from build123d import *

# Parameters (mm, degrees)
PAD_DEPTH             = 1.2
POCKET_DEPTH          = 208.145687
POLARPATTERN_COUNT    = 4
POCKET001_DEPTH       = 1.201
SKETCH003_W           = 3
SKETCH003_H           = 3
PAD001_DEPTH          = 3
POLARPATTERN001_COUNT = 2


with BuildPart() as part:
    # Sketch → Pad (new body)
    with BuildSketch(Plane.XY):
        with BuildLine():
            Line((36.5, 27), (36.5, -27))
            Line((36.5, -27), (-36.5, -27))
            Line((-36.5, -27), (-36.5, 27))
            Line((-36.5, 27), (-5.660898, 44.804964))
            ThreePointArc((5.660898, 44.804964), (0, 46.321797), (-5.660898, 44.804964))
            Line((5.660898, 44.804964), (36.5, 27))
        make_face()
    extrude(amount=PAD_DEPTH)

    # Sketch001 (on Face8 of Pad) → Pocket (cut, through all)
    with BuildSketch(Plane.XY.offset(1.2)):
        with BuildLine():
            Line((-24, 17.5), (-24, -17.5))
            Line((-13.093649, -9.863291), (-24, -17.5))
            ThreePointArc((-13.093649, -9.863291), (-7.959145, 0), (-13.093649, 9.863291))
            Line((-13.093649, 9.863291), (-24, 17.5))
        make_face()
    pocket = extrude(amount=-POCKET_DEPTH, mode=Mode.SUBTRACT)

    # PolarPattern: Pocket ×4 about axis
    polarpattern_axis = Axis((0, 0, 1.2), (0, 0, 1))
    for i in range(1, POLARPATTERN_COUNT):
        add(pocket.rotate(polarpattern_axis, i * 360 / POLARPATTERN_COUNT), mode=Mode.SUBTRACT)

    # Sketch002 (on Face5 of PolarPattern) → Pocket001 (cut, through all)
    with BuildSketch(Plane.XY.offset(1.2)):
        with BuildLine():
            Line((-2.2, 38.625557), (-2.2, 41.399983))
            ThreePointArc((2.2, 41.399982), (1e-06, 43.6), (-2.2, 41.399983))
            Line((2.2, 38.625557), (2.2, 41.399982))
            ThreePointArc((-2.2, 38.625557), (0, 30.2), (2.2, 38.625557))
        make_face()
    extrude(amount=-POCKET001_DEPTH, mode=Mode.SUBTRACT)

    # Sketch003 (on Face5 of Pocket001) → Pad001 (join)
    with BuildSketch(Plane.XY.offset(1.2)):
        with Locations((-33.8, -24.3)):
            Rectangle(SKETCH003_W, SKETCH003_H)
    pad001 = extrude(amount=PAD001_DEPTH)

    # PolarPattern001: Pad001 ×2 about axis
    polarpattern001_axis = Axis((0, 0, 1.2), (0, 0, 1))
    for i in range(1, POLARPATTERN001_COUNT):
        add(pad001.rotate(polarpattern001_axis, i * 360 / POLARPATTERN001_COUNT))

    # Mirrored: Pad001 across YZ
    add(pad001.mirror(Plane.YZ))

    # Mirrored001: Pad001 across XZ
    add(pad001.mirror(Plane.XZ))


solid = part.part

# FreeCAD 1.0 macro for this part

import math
import FreeCAD as App
import Part
import Sketcher
Q = App.Units.Quantity

doc = App.newDocument("Part")
params = doc.addObject("Spreadsheet::Sheet", "Params")
for row, (alias, value) in enumerate([
    ("sketch1_width", "73 mm"),
    ("sketch1_height", "54 mm"),
    ("pad1_length", "1.2 mm"),
    ("sketch2_height", "35 mm"),
    ("sketch3_radius", "4.5 mm"),
    ("sketch3_radius2", "2.2 mm"),
    ("sketch4_width", "3 mm"),
    ("pad2_length", "3 mm"),
], start=1):
    params.set(f"A{row}", alias)
    params.set(f"B{row}", "=" + value)
    params.setAlias(f"B{row}", alias)

body = doc.addObject("PartDesign::Body", "Body")

sketch1 = body.newObject("Sketcher::SketchObject", "Sketch")
sketch1.AttachmentSupport = (doc.getObject("XY_Plane"), [""])
sketch1.MapMode = "FlatFace"
sketch1.addGeometry(Part.LineSegment(App.Vector(36, -27, 0), App.Vector(36, 27, 0)), False)
sketch1.addGeometry(Part.LineSegment(App.Vector(36, 27, 0), App.Vector(6, 45, 0)), False)
sketch1.addGeometry(Part.ArcOfCircle(Part.Circle(App.Vector(0, 35, 0), App.Vector(0, 0, 1), 11), math.radians(60), math.radians(120)), False)
sketch1.addGeometry(Part.LineSegment(App.Vector(-6, 45, 0), App.Vector(-36, 27, 0)), False)
sketch1.addGeometry(Part.LineSegment(App.Vector(-36, 27, 0), App.Vector(-36, -27, 0)), False)
sketch1.addGeometry(Part.LineSegment(App.Vector(-36, -27, 0), App.Vector(36, -27, 0)), False)
sketch1.addConstraint(Sketcher.Constraint("Coincident", 0, 2, 1, 1))
sketch1.addConstraint(Sketcher.Constraint("Tangent", 1, 2, 2, 1))
sketch1.addConstraint(Sketcher.Constraint("Tangent", 2, 2, 3, 1))
sketch1.addConstraint(Sketcher.Constraint("Coincident", 3, 2, 4, 1))
sketch1.addConstraint(Sketcher.Constraint("Coincident", 4, 2, 5, 1))
sketch1.addConstraint(Sketcher.Constraint("Coincident", 5, 2, 0, 1))
sketch1.addConstraint(Sketcher.Constraint("Vertical", 0))
sketch1.addConstraint(Sketcher.Constraint("Vertical", 4))
sketch1.addConstraint(Sketcher.Constraint("Horizontal", 5))
sketch1.addConstraint(Sketcher.Constraint("Symmetric", 0, 2, 4, 2, -1, 1))
sketch1.addConstraint(Sketcher.Constraint("Symmetric", 1, 2, 2, 2, -2))
sketch1.addConstraint(Sketcher.Constraint("DistanceX", 5, 1, 5, 2, Q("73 mm")))
sketch1.addConstraint(Sketcher.Constraint("DistanceY", 0, 1, 0, 2, Q("54 mm")))
sketch1.addConstraint(Sketcher.Constraint("Angle", 1, Q("150 deg")))
sketch1.addConstraint(Sketcher.Constraint("DistanceY", -1, 1, 2, 3, Q("35.000001 mm")))
sketch1.setExpression("Constraints[11]", "Params.sketch1_width")
sketch1.setExpression("Constraints[12]", "Params.sketch1_height")
pad1 = body.newObject("PartDesign::Pad", "Pad")
pad1.Profile = sketch1
pad1.setExpression("Length", "Params.pad1_length")

sketch2 = body.newObject("Sketcher::SketchObject", "Sketch001")
sketch2.AttachmentSupport = (doc.getObject("XY_Plane"), [""])
sketch2.MapMode = "FlatFace"
sketch2.AttachmentOffset = App.Placement(App.Vector(0, 0, 1.2), App.Rotation())
sketch2.addGeometry(Part.LineSegment(App.Vector(-24, 18, 0), App.Vector(-24, -18, 0)), False)
sketch2.addGeometry(Part.LineSegment(App.Vector(-24, -18, 0), App.Vector(-13, -10, 0)), False)
sketch2.addGeometry(Part.ArcOfCircle(Part.Circle(App.Vector(-20, 0, 0), App.Vector(0, 0, 1), 12), math.radians(-55), math.radians(55)), False)
sketch2.addGeometry(Part.LineSegment(App.Vector(-13, 10, 0), App.Vector(-24, 18, 0)), False)
sketch2.addConstraint(Sketcher.Constraint("Coincident", 0, 2, 1, 1))
sketch2.addConstraint(Sketcher.Constraint("Tangent", 1, 2, 2, 1))
sketch2.addConstraint(Sketcher.Constraint("Tangent", 2, 2, 3, 1))
sketch2.addConstraint(Sketcher.Constraint("Coincident", 3, 2, 0, 1))
sketch2.addConstraint(Sketcher.Constraint("Vertical", 0))
sketch2.addConstraint(Sketcher.Constraint("Symmetric", 1, 2, 2, 2, -1))
sketch2.addConstraint(Sketcher.Constraint("DistanceY", 0, 2, 0, 1, Q("35 mm")))
sketch2.addConstraint(Sketcher.Constraint("Angle", 1, Q("34.999999 deg")))
sketch2.addConstraint(Sketcher.Constraint("DistanceX", 2, 3, -1, 1, Q("20 mm")))
sketch2.addConstraint(Sketcher.Constraint("DistanceX", 0, 2, -1, 1, Q("24 mm")))
sketch2.setExpression("Constraints[6]", "Params.sketch2_height")
pocket1 = body.newObject("PartDesign::Pocket", "Pocket")
pocket1.Profile = sketch2
pocket1.Type = "ThroughAll"
doc.recompute()

polarpattern = body.newObject("PartDesign::PolarPattern", "PolarPattern")
polarpattern.Originals = [pocket1]
polarpattern.Axis = (doc.getObject("Z_Axis"), [""])
polarpattern.Angle = 360
polarpattern.Occurrences = 4
body.Tip = polarpattern

sketch3 = body.newObject("Sketcher::SketchObject", "Sketch002")
sketch3.AttachmentSupport = (doc.getObject("XY_Plane"), [""])
sketch3.MapMode = "FlatFace"
sketch3.AttachmentOffset = App.Placement(App.Vector(0, 0, 1.2), App.Rotation())
sketch3.addGeometry(Part.LineSegment(App.Vector(-2.2, 41.4, 0), App.Vector(-2.2, 38.6, 0)), False)
sketch3.addGeometry(Part.ArcOfCircle(Part.Circle(App.Vector(0, 34.7, 0), App.Vector(0, 0, 1), 4.5), math.radians(119), math.radians(421)), False)
sketch3.addGeometry(Part.LineSegment(App.Vector(2.2, 38.6, 0), App.Vector(2.2, 41.4, 0)), False)
sketch3.addGeometry(Part.ArcOfCircle(Part.Circle(App.Vector(0, 41.4, 0), App.Vector(0, 0, 1), 2.2), math.radians(0), math.radians(180)), False)
sketch3.addConstraint(Sketcher.Constraint("Coincident", 0, 2, 1, 1))
sketch3.addConstraint(Sketcher.Constraint("Coincident", 1, 2, 2, 1))
sketch3.addConstraint(Sketcher.Constraint("Coincident", 2, 2, 3, 1))
sketch3.addConstraint(Sketcher.Constraint("Coincident", 3, 2, 0, 1))
sketch3.addConstraint(Sketcher.Constraint("Vertical", 0))
sketch3.addConstraint(Sketcher.Constraint("Vertical", 2))
sketch3.addConstraint(Sketcher.Constraint("Symmetric", 0, 2, 1, 2, -2))
sketch3.addConstraint(Sketcher.Constraint("Horizontal", 2, 2, 3, 2))
sketch3.addConstraint(Sketcher.Constraint("Radius", 1, Q("4.5 mm")))
sketch3.addConstraint(Sketcher.Constraint("Radius", 3, Q("2.2 mm")))
sketch3.addConstraint(Sketcher.Constraint("DistanceY", -1, 1, 1, 3, Q("34.7 mm")))
sketch3.addConstraint(Sketcher.Constraint("DistanceY", -1, 1, 3, 3, Q("41.4 mm")))
sketch3.addConstraint(Sketcher.Constraint("DistanceY", 0, 2, 0, 1, Q("2.774426 mm")))
sketch3.setExpression("Constraints[8]", "Params.sketch3_radius")
sketch3.setExpression("Constraints[9]", "Params.sketch3_radius2")
pocket2 = body.newObject("PartDesign::Pocket", "Pocket001")
pocket2.Profile = sketch3
pocket2.Type = "ThroughAll"

sketch4 = body.newObject("Sketcher::SketchObject", "Sketch003")
sketch4.AttachmentSupport = (doc.getObject("XY_Plane"), [""])
sketch4.MapMode = "FlatFace"
sketch4.AttachmentOffset = App.Placement(App.Vector(0, 0, 1.2), App.Rotation())
sketch4.addGeometry(Part.LineSegment(App.Vector(-35.3, -22.8, 0), App.Vector(-35.3, -25.8, 0)), False)
sketch4.addGeometry(Part.LineSegment(App.Vector(-35.3, -25.8, 0), App.Vector(-32.3, -25.8, 0)), False)
sketch4.addGeometry(Part.LineSegment(App.Vector(-32.3, -25.8, 0), App.Vector(-32.3, -22.8, 0)), False)
sketch4.addGeometry(Part.LineSegment(App.Vector(-32.3, -22.8, 0), App.Vector(-35.3, -22.8, 0)), False)
sketch4.addConstraint(Sketcher.Constraint("Coincident", 0, 2, 1, 1))
sketch4.addConstraint(Sketcher.Constraint("Coincident", 1, 2, 2, 1))
sketch4.addConstraint(Sketcher.Constraint("Coincident", 2, 2, 3, 1))
sketch4.addConstraint(Sketcher.Constraint("Coincident", 3, 2, 0, 1))
sketch4.addConstraint(Sketcher.Constraint("Vertical", 0))
sketch4.addConstraint(Sketcher.Constraint("Horizontal", 1))
sketch4.addConstraint(Sketcher.Constraint("Vertical", 2))
sketch4.addConstraint(Sketcher.Constraint("Horizontal", 3))
sketch4.addConstraint(Sketcher.Constraint("Equal", 3, 0))
sketch4.addConstraint(Sketcher.Constraint("DistanceX", 1, 1, 1, 2, Q("3 mm")))
sketch4.addConstraint(Sketcher.Constraint("DistanceX", 0, 2, -1, 1, Q("35.3 mm")))
sketch4.addConstraint(Sketcher.Constraint("DistanceY", 0, 2, -1, 1, Q("25.8 mm")))
sketch4.setExpression("Constraints[9]", "Params.sketch4_width")
pad2 = body.newObject("PartDesign::Pad", "Pad001")
pad2.Profile = sketch4
pad2.setExpression("Length", "Params.pad2_length")
doc.recompute()

polarpattern2 = body.newObject("PartDesign::PolarPattern", "PolarPattern001")
polarpattern2.Originals = [pad2]
polarpattern2.Axis = (doc.getObject("Z_Axis"), [""])
polarpattern2.Angle = 360
polarpattern2.Occurrences = 2
body.Tip = polarpattern2
doc.recompute()

mirrored = body.newObject("PartDesign::Mirrored", "Mirrored")
mirrored.Originals = [pad2]
mirrored.MirrorPlane = (doc.getObject("YZ_Plane"), [""])
body.Tip = mirrored
doc.recompute()

mirrored2 = body.newObject("PartDesign::Mirrored", "Mirrored001")
mirrored2.Originals = [pad2]
mirrored2.MirrorPlane = (doc.getObject("XZ_Plane"), [""])
body.Tip = mirrored2

doc.recompute()
